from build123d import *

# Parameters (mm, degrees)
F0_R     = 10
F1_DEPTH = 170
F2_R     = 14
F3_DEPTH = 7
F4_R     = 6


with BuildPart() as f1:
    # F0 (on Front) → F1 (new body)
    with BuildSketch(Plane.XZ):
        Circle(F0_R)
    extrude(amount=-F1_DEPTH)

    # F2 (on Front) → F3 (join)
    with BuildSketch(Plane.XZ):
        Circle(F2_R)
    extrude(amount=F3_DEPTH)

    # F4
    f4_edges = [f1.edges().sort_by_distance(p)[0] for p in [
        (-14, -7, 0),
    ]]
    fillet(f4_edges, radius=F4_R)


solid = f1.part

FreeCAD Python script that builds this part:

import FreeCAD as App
import Part
import Sketcher
from FreeCAD import Vector


def edges_at(feature, points):
    """Names of the edges that pass closest to the given points."""
    edges = feature.Shape.Edges
    near = lambda p: min(range(len(edges)), key=lambda i: edges[i].distToShape(Part.Vertex(*p))[0])
    return sorted({f"Edge{near(p) + 1}" for p in points})

doc = App.newDocument("Part")
params = doc.addObject("Spreadsheet::Sheet", "Params")
for row, (alias, value) in enumerate([
    ("sketch1_diameter", "20 mm"),
    ("pad1_length", "170 mm"),
    ("sketch2_diameter", "28 mm"),
    ("pad2_length", "7 mm"),
    ("fillet_radius", "6 mm"),
], start=1):
    params.set(f"A{row}", alias)
    params.set(f"B{row}", "=" + value)
    params.setAlias(f"B{row}", alias)

body = doc.addObject("PartDesign::Body", "Body")

sketch1 = doc.addObject("Sketcher::SketchObject", "Sketch")
body.addObject(sketch1)
sketch1.AttachmentSupport = (doc.XZ_Plane, [""])
sketch1.MapMode = "FlatFace"
sketch1.addGeometry(Part.Circle(Vector(0, 0, 0), Vector(0, 0, 1), 10), False)
sketch1.addConstraint([
    Sketcher.Constraint("Coincident", 0, 3, -1, 1),
    Sketcher.Constraint("Diameter", 0, 20.0),
])
sketch1.setExpression("Constraints[1]", "Params.sketch1_diameter")
pad1 = doc.addObject("PartDesign::Pad", "Pad")
body.addObject(pad1)
pad1.Profile = sketch1
pad1.setExpression("Length", "Params.pad1_length")
pad1.Reversed = True

sketch2 = doc.addObject("Sketcher::SketchObject", "Sketch001")
body.addObject(sketch2)
sketch2.AttachmentSupport = (doc.XZ_Plane, [""])
sketch2.MapMode = "FlatFace"
sketch2.addGeometry(Part.Circle(Vector(0, 0, 0), Vector(0, 0, 1), 14), False)
sketch2.addConstraint([
    Sketcher.Constraint("Coincident", 0, 3, -1, 1),
    Sketcher.Constraint("Diameter", 0, 28.0),
])
sketch2.setExpression("Constraints[1]", "Params.sketch2_diameter")
pad2 = doc.addObject("PartDesign::Pad", "Pad001")
body.addObject(pad2)
pad2.Profile = sketch2
pad2.setExpression("Length", "Params.pad2_length")
doc.recompute()

fillet = doc.addObject("PartDesign::Fillet", "Fillet")
body.addObject(fillet)
fillet.Base = (pad2, edges_at(pad2, [(-14, -7, 0)]))
fillet.setExpression("Radius", "Params.fillet_radius")

doc.recompute()
